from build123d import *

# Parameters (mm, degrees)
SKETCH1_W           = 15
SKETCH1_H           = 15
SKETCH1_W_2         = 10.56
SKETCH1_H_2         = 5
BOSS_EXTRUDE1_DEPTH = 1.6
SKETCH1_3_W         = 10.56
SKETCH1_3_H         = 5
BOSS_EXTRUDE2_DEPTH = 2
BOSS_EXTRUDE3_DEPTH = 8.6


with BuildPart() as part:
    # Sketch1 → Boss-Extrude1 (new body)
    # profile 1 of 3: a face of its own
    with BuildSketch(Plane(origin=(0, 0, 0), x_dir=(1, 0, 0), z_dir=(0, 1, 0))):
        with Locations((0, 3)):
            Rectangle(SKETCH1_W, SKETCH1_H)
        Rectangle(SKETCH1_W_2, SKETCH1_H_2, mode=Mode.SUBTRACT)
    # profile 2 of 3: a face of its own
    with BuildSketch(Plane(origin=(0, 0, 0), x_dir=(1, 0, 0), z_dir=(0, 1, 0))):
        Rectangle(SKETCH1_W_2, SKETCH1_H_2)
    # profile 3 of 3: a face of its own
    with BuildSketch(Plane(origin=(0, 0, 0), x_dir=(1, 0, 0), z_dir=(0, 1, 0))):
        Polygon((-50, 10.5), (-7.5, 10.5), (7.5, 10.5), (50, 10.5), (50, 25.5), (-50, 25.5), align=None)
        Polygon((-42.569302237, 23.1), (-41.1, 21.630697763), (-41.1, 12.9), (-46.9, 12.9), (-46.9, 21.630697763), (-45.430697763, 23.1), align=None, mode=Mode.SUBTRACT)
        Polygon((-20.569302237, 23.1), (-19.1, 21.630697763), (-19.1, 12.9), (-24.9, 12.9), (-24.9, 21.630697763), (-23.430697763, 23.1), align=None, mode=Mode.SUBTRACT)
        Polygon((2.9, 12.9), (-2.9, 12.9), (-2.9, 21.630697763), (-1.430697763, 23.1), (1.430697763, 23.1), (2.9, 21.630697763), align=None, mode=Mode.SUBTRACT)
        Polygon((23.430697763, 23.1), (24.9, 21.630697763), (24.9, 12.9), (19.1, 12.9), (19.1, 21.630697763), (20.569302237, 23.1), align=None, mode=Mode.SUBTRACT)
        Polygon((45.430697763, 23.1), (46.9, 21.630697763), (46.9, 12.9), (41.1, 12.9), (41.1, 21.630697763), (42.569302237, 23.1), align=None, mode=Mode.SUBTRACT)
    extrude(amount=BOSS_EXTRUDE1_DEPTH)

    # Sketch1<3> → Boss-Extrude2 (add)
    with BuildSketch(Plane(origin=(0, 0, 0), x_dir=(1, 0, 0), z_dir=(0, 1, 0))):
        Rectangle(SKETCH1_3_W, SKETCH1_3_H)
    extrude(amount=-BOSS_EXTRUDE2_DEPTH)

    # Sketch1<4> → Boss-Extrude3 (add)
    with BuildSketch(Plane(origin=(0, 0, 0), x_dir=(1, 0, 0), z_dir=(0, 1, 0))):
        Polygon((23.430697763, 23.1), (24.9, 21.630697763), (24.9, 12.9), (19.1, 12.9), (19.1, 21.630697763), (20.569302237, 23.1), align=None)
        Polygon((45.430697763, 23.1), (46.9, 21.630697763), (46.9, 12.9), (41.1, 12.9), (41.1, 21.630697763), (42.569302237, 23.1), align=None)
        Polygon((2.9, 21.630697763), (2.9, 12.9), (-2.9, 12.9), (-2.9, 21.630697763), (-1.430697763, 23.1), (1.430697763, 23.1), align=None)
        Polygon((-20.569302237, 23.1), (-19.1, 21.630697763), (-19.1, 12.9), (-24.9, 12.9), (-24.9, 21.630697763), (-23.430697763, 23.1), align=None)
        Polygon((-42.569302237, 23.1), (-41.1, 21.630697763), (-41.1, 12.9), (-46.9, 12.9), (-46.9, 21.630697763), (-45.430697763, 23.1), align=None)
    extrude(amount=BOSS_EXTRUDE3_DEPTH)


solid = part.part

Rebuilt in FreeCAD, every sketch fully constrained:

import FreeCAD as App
import Part
import Sketcher

V = App.Vector
Q = App.Units.Quantity

doc = App.newDocument("Part")
body = doc.addObject("PartDesign::Body", "Body")

sketch1 = body.newObject("Sketcher::SketchObject", "Sketch")
sketch1.AttachmentSupport = (doc.getObject("XZ_Plane"), [""])
sketch1.MapMode = "FlatFace"
sketch1.addGeometry(Part.LineSegment(V(-7.5, -10.5, 0), V(-7.5, 4.5, 0)), False)
sketch1.addGeometry(Part.LineSegment(V(-7.5, 4.5, 0), V(7.5, 4.5, 0)), False)
sketch1.addGeometry(Part.LineSegment(V(7.5, 4.5, 0), V(7.5, -10.5, 0)), False)
sketch1.addGeometry(Part.LineSegment(V(7.5, -10.5, 0), V(50, -10.5, 0)), False)
sketch1.addGeometry(Part.LineSegment(V(50, -10.5, 0), V(50, -25.5, 0)), False)
sketch1.addGeometry(Part.LineSegment(V(50, -25.5, 0), V(-50, -25.5, 0)), False)
sketch1.addGeometry(Part.LineSegment(V(-50, -25.5, 0), V(-50, -10.5, 0)), False)
sketch1.addGeometry(Part.LineSegment(V(-50, -10.5, 0), V(-7.5, -10.5, 0)), False)
sketch1.addGeometry(Part.LineSegment(V(45.4, -23.1, 0), V(46.9, -21.6, 0)), False)
sketch1.addGeometry(Part.LineSegment(V(46.9, -21.6, 0), V(46.9, -12.9, 0)), False)
sketch1.addGeometry(Part.LineSegment(V(46.9, -12.9, 0), V(41.1, -12.9, 0)), False)
sketch1.addGeometry(Part.LineSegment(V(41.1, -12.9, 0), V(41.1, -21.6, 0)), False)
sketch1.addGeometry(Part.LineSegment(V(41.1, -21.6, 0), V(42.6, -23.1, 0)), False)
sketch1.addGeometry(Part.LineSegment(V(42.6, -23.1, 0), V(45.4, -23.1, 0)), False)
sketch1.addGeometry(Part.LineSegment(V(-45.4, -23.1, 0), V(-42.6, -23.1, 0)), False)
sketch1.addGeometry(Part.LineSegment(V(-42.6, -23.1, 0), V(-41.1, -21.6, 0)), False)
sketch1.addGeometry(Part.LineSegment(V(-41.1, -21.6, 0), V(-41.1, -12.9, 0)), False)
sketch1.addGeometry(Part.LineSegment(V(-41.1, -12.9, 0), V(-46.9, -12.9, 0)), False)
sketch1.addGeometry(Part.LineSegment(V(-46.9, -12.9, 0), V(-46.9, -21.6, 0)), False)
sketch1.addGeometry(Part.LineSegment(V(-46.9, -21.6, 0), V(-45.4, -23.1, 0)), False)
sketch1.addGeometry(Part.LineSegment(V(-23.4, -23.1, 0), V(-20.6, -23.1, 0)), False)
sketch1.addGeometry(Part.LineSegment(V(-20.6, -23.1, 0), V(-19.1, -21.6, 0)), False)
sketch1.addGeometry(Part.LineSegment(V(-19.1, -21.6, 0), V(-19.1, -12.9, 0)), False)
sketch1.addGeometry(Part.LineSegment(V(-19.1, -12.9, 0), V(-24.9, -12.9, 0)), False)
sketch1.addGeometry(Part.LineSegment(V(-24.9, -12.9, 0), V(-24.9, -21.6, 0)), False)
sketch1.addGeometry(Part.LineSegment(V(-24.9, -21.6, 0), V(-23.4, -23.1, 0)), False)
sketch1.addGeometry(Part.LineSegment(V(2.9, -21.6, 0), V(2.9, -12.9, 0)), False)
sketch1.addGeometry(Part.LineSegment(V(2.9, -12.9, 0), V(-2.9, -12.9, 0)), False)
sketch1.addGeometry(Part.LineSegment(V(-2.9, -12.9, 0), V(-2.9, -21.6, 0)), False)
sketch1.addGeometry(Part.LineSegment(V(-2.9, -21.6, 0), V(-1.4, -23.1, 0)), False)
sketch1.addGeometry(Part.LineSegment(V(-1.4, -23.1, 0), V(1.4, -23.1, 0)), False)
sketch1.addGeometry(Part.LineSegment(V(1.4, -23.1, 0), V(2.9, -21.6, 0)), False)
sketch1.addGeometry(Part.LineSegment(V(20.6, -23.1, 0), V(23.4, -23.1, 0)), False)
sketch1.addGeometry(Part.LineSegment(V(23.4, -23.1, 0), V(24.9, -21.6, 0)), False)
sketch1.addGeometry(Part.LineSegment(V(24.9, -21.6, 0), V(24.9, -12.9, 0)), False)
sketch1.addGeometry(Part.LineSegment(V(24.9, -12.9, 0), V(19.1, -12.9, 0)), False)
sketch1.addGeometry(Part.LineSegment(V(19.1, -12.9, 0), V(19.1, -21.6, 0)), False)
sketch1.addGeometry(Part.LineSegment(V(19.1, -21.6, 0), V(20.6, -23.1, 0)), False)
sketch1.addConstraint(Sketcher.Constraint("Coincident", 0, 2, 1, 1))
sketch1.addConstraint(Sketcher.Constraint("Coincident", 1, 2, 2, 1))
sketch1.addConstraint(Sketcher.Constraint("Coincident", 2, 2, 3, 1))
sketch1.addConstraint(Sketcher.Constraint("Coincident", 3, 2, 4, 1))
sketch1.addConstraint(Sketcher.Constraint("Coincident", 4, 2, 5, 1))
sketch1.addConstraint(Sketcher.Constraint("Coincident", 5, 2, 6, 1))
sketch1.addConstraint(Sketcher.Constraint("Coincident", 6, 2, 7, 1))
sketch1.addConstraint(Sketcher.Constraint("Coincident", 7, 2, 0, 1))
sketch1.addConstraint(Sketcher.Constraint("Coincident", 8, 2, 9, 1))
sketch1.addConstraint(Sketcher.Constraint("Coincident", 9, 2, 10, 1))
sketch1.addConstraint(Sketcher.Constraint("Coincident", 10, 2, 11, 1))
sketch1.addConstraint(Sketcher.Constraint("Coincident", 11, 2, 12, 1))
sketch1.addConstraint(Sketcher.Constraint("Coincident", 12, 2, 13, 1))
sketch1.addConstraint(Sketcher.Constraint("Coincident", 13, 2, 8, 1))
sketch1.addConstraint(Sketcher.Constraint("Coincident", 14, 2, 15, 1))
sketch1.addConstraint(Sketcher.Constraint("Coincident", 15, 2, 16, 1))
sketch1.addConstraint(Sketcher.Constraint("Coincident", 16, 2, 17, 1))
sketch1.addConstraint(Sketcher.Constraint("Coincident", 17, 2, 18, 1))
sketch1.addConstraint(Sketcher.Constraint("Coincident", 18, 2, 19, 1))
sketch1.addConstraint(Sketcher.Constraint("Coincident", 19, 2, 14, 1))
sketch1.addConstraint(Sketcher.Constraint("Coincident", 20, 2, 21, 1))
sketch1.addConstraint(Sketcher.Constraint("Coincident", 21, 2, 22, 1))
sketch1.addConstraint(Sketcher.Constraint("Coincident", 22, 2, 23, 1))
sketch1.addConstraint(Sketcher.Constraint("Coincident", 23, 2, 24, 1))
sketch1.addConstraint(Sketcher.Constraint("Coincident", 24, 2, 25, 1))
sketch1.addConstraint(Sketcher.Constraint("Coincident", 25, 2, 20, 1))
sketch1.addConstraint(Sketcher.Constraint("Coincident", 26, 2, 27, 1))
sketch1.addConstraint(Sketcher.Constraint("Coincident", 27, 2, 28, 1))
sketch1.addConstraint(Sketcher.Constraint("Coincident", 28, 2, 29, 1))
sketch1.addConstraint(Sketcher.Constraint("Coincident", 29, 2, 30, 1))
sketch1.addConstraint(Sketcher.Constraint("Coincident", 30, 2, 31, 1))
sketch1.addConstraint(Sketcher.Constraint("Coincident", 31, 2, 26, 1))
sketch1.addConstraint(Sketcher.Constraint("Coincident", 32, 2, 33, 1))
sketch1.addConstraint(Sketcher.Constraint("Coincident", 33, 2, 34, 1))
sketch1.addConstraint(Sketcher.Constraint("Coincident", 34, 2, 35, 1))
sketch1.addConstraint(Sketcher.Constraint("Coincident", 35, 2, 36, 1))
sketch1.addConstraint(Sketcher.Constraint("Coincident", 36, 2, 37, 1))
sketch1.addConstraint(Sketcher.Constraint("Coincident", 37, 2, 32, 1))
sketch1.addConstraint(Sketcher.Constraint("Vertical", 0))
sketch1.addConstraint(Sketcher.Constraint("Horizontal", 1))
sketch1.addConstraint(Sketcher.Constraint("Vertical", 2))
sketch1.addConstraint(Sketcher.Constraint("Horizontal", 3))
sketch1.addConstraint(Sketcher.Constraint("Vertical", 4))
sketch1.addConstraint(Sketcher.Constraint("Horizontal", 5))
sketch1.addConstraint(Sketcher.Constraint("Vertical", 6))
sketch1.addConstraint(Sketcher.Constraint("Horizontal", 7))
sketch1.addConstraint(Sketcher.Constraint("Vertical", 9))
sketch1.addConstraint(Sketcher.Constraint("Horizontal", 10))
sketch1.addConstraint(Sketcher.Constraint("Vertical", 11))
sketch1.addConstraint(Sketcher.Constraint("Horizontal", 13))
sketch1.addConstraint(Sketcher.Constraint("Horizontal", 14))
sketch1.addConstraint(Sketcher.Constraint("Vertical", 16))
sketch1.addConstraint(Sketcher.Constraint("Horizontal", 17))
sketch1.addConstraint(Sketcher.Constraint("Vertical", 18))
sketch1.addConstraint(Sketcher.Constraint("Horizontal", 20))
sketch1.addConstraint(Sketcher.Constraint("Vertical", 22))
sketch1.addConstraint(Sketcher.Constraint("Horizontal", 23))
sketch1.addConstraint(Sketcher.Constraint("Vertical", 24))
sketch1.addConstraint(Sketcher.Constraint("Vertical", 26))
sketch1.addConstraint(Sketcher.Constraint("Horizontal", 27))
sketch1.addConstraint(Sketcher.Constraint("Vertical", 28))
sketch1.addConstraint(Sketcher.Constraint("Horizontal", 30))
sketch1.addConstraint(Sketcher.Constraint("Horizontal", 32))
sketch1.addConstraint(Sketcher.Constraint("Vertical", 34))
sketch1.addConstraint(Sketcher.Constraint("Horizontal", 35))
sketch1.addConstraint(Sketcher.Constraint("Vertical", 36))
sketch1.addConstraint(Sketcher.Constraint("Symmetric", 3, 2, 6, 2, -2))
sketch1.addConstraint(Sketcher.Constraint("Symmetric", 12, 2, 14, 2, -2))
sketch1.addConstraint(Sketcher.Constraint("Symmetric", 11, 2, 15, 2, -2))
sketch1.addConstraint(Sketcher.Constraint("Symmetric", 9, 2, 17, 2, -2))
sketch1.addConstraint(Sketcher.Constraint("Symmetric", 28, 2, 31, 2, -2))
sketch1.addConstraint(Sketcher.Constraint("Symmetric", 25, 2, 32, 2, -2))
sketch1.addConstraint(Sketcher.Constraint("Symmetric", 24, 2, 33, 2, -2))
sketch1.addConstraint(Sketcher.Constraint("Symmetric", 22, 2, 35, 2, -2))
sketch1.addConstraint(Sketcher.Constraint("Perpendicular", 8, 12))
sketch1.addConstraint(Sketcher.Constraint("Perpendicular", 12, 15))
sketch1.addConstraint(Sketcher.Constraint("Perpendicular", 15, 19))
sketch1.addConstraint(Sketcher.Constraint("Perpendicular", 19, 21))
sketch1.addConstraint(Sketcher.Constraint("Perpendicular", 21, 25))
sketch1.addConstraint(Sketcher.Constraint("Parallel", 25, 29))
sketch1.addConstraint(Sketcher.Constraint("Perpendicular", 29, 31))
sketch1.addConstraint(Sketcher.Constraint("Perpendicular", 33, 37))
sketch1.addConstraint(Sketcher.Constraint("Horizontal", 8, 2, 11, 2))
sketch1.addConstraint(Sketcher.Constraint("Horizontal", 15, 2, 18, 2))
sketch1.addConstraint(Sketcher.Constraint("Horizontal", 19, 2, 20, 2))
sketch1.addConstraint(Sketcher.Constraint("Horizontal", 18, 2, 21, 2))
sketch1.addConstraint(Sketcher.Constraint("Horizontal", 17, 2, 22, 2))
sketch1.addConstraint(Sketcher.Constraint("Horizontal", 21, 2, 24, 2))
sketch1.addConstraint(Sketcher.Constraint("Horizontal", 23, 2, 26, 2))
sketch1.addConstraint(Sketcher.Constraint("Horizontal", 24, 2, 28, 2))
sketch1.addConstraint(Sketcher.Constraint("Horizontal", 25, 2, 29, 2))
sketch1.addConstraint(Sketcher.Constraint("Horizontal", 33, 2, 36, 2))
sketch1.addConstraint(Sketcher.Constraint("Equal", 3, 7))
sketch1.addConstraint(Sketcher.Constraint("Equal", 14, 20))
sketch1.addConstraint(Sketcher.Constraint("Equal", 23, 27))
sketch1.addConstraint(Sketcher.Constraint("Equal", 1, 0))
sketch1.addConstraint(Sketcher.Constraint("Equal", 2, 4))
sketch1.addConstraint(Sketcher.Constraint("DistanceX", 1, 1, 1, 2, Q("15 mm")))
sketch1.addConstraint(Sketcher.Constraint("DistanceX", 5, 2, 5, 1, Q("100 mm")))
sketch1.addConstraint(Sketcher.Constraint("DistanceX", 10, 2, 10, 1, Q("5.8 mm")))
sketch1.addConstraint(Sketcher.Constraint("DistanceX", 14, 2, 20, 2, Q("22 mm")))
sketch1.addConstraint(Sketcher.Constraint("DistanceX", 22, 2, 26, 2, Q("22 mm")))
sketch1.addConstraint(Sketcher.Constraint("DistanceY", -1, 1, 0, 2, Q("4.5 mm")))
sketch1.addConstraint(Sketcher.Constraint("DistanceY", 9, 2, -1, 1, Q("12.9 mm")))
sketch1.addConstraint(Sketcher.Constraint("DistanceY", 12, 2, -1, 1, Q("23.1 mm")))
sketch1.addConstraint(Sketcher.Constraint("DistanceX", 13, 1, 13, 2, Q("2.861396 mm")))
pad1 = body.newObject("PartDesign::Pad", "Pad")
pad1.Profile = sketch1
pad1.Length = 1.6
pad1.Reversed = True

sketch2 = body.newObject("Sketcher::SketchObject", "Sketch001")
sketch2.AttachmentSupport = (doc.getObject("XZ_Plane"), [""])
sketch2.MapMode = "FlatFace"
sketch2.addGeometry(Part.LineSegment(V(-5, -2, 0), V(-5, 2, 0)), False)
sketch2.addGeometry(Part.LineSegment(V(-5, 2, 0), V(5, 2, 0)), False)
sketch2.addGeometry(Part.LineSegment(V(5, 2, 0), V(5, -2, 0)), False)
sketch2.addGeometry(Part.LineSegment(V(5, -2, 0), V(-5, -2, 0)), False)
sketch2.addConstraint(Sketcher.Constraint("Coincident", 0, 2, 1, 1))
sketch2.addConstraint(Sketcher.Constraint("Coincident", 1, 2, 2, 1))
sketch2.addConstraint(Sketcher.Constraint("Coincident", 2, 2, 3, 1))
sketch2.addConstraint(Sketcher.Constraint("Coincident", 3, 2, 0, 1))
sketch2.addConstraint(Sketcher.Constraint("Vertical", 0))
sketch2.addConstraint(Sketcher.Constraint("Horizontal", 1))
sketch2.addConstraint(Sketcher.Constraint("Vertical", 2))
sketch2.addConstraint(Sketcher.Constraint("Horizontal", 3))
sketch2.addConstraint(Sketcher.Constraint("Symmetric", 0, 2, 2, 2, -1, 1))
sketch2.addConstraint(Sketcher.Constraint("DistanceY", 0, 1, 0, 2, Q("5 mm")))
sketch2.addConstraint(Sketcher.Constraint("DistanceX", 1, 1, 1, 2, Q("10.56 mm")))
pad2 = body.newObject("PartDesign::Pad", "Pad001")
pad2.Profile = sketch2
pad2.Length = 2

sketch3 = body.newObject("Sketcher::SketchObject", "Sketch002")
sketch3.AttachmentSupport = (doc.getObject("XZ_Plane"), [""])
sketch3.MapMode = "FlatFace"
sketch3.addGeometry(Part.LineSegment(V(24.9, -21.6, 0), V(23.4, -23.1, 0)), False)
sketch3.addGeometry(Part.LineSegment(V(23.4, -23.1, 0), V(20.6, -23.1, 0)), False)
sketch3.addGeometry(Part.LineSegment(V(20.6, -23.1, 0), V(19.1, -21.6, 0)), False)
sketch3.addGeometry(Part.LineSegment(V(19.1, -21.6, 0), V(19.1, -12.9, 0)), False)
sketch3.addGeometry(Part.LineSegment(V(19.1, -12.9, 0), V(24.9, -12.9, 0)), False)
sketch3.addGeometry(Part.LineSegment(V(24.9, -12.9, 0), V(24.9, -21.6, 0)), False)
sketch3.addGeometry(Part.LineSegment(V(46.9, -21.6, 0), V(45.4, -23.1, 0)), False)
sketch3.addGeometry(Part.LineSegment(V(45.4, -23.1, 0), V(42.6, -23.1, 0)), False)
sketch3.addGeometry(Part.LineSegment(V(42.6, -23.1, 0), V(41.1, -21.6, 0)), False)
sketch3.addGeometry(Part.LineSegment(V(41.1, -21.6, 0), V(41.1, -12.9, 0)), False)
sketch3.addGeometry(Part.LineSegment(V(41.1, -12.9, 0), V(46.9, -12.9, 0)), False)
sketch3.addGeometry(Part.LineSegment(V(46.9, -12.9, 0), V(46.9, -21.6, 0)), False)
sketch3.addGeometry(Part.LineSegment(V(2.9, -12.9, 0), V(2.9, -21.6, 0)), False)
sketch3.addGeometry(Part.LineSegment(V(2.9, -21.6, 0), V(1.4, -23.1, 0)), False)
sketch3.addGeometry(Part.LineSegment(V(1.4, -23.1, 0), V(-1.4, -23.1, 0)), False)
sketch3.addGeometry(Part.LineSegment(V(-1.4, -23.1, 0), V(-2.9, -21.6, 0)), False)
sketch3.addGeometry(Part.LineSegment(V(-2.9, -21.6, 0), V(-2.9, -12.9, 0)), False)
sketch3.addGeometry(Part.LineSegment(V(-2.9, -12.9, 0), V(2.9, -12.9, 0)), False)
sketch3.addGeometry(Part.LineSegment(V(-19.1, -21.6, 0), V(-20.6, -23.1, 0)), False)
sketch3.addGeometry(Part.LineSegment(V(-20.6, -23.1, 0), V(-23.4, -23.1, 0)), False)
sketch3.addGeometry(Part.LineSegment(V(-23.4, -23.1, 0), V(-24.9, -21.6, 0)), False)
sketch3.addGeometry(Part.LineSegment(V(-24.9, -21.6, 0), V(-24.9, -12.9, 0)), False)
sketch3.addGeometry(Part.LineSegment(V(-24.9, -12.9, 0), V(-19.1, -12.9, 0)), False)
sketch3.addGeometry(Part.LineSegment(V(-19.1, -12.9, 0), V(-19.1, -21.6, 0)), False)
sketch3.addGeometry(Part.LineSegment(V(-41.1, -21.6, 0), V(-42.6, -23.1, 0)), False)
sketch3.addGeometry(Part.LineSegment(V(-42.6, -23.1, 0), V(-45.4, -23.1, 0)), False)
sketch3.addGeometry(Part.LineSegment(V(-45.4, -23.1, 0), V(-46.9, -21.6, 0)), False)
sketch3.addGeometry(Part.LineSegment(V(-46.9, -21.6, 0), V(-46.9, -12.9, 0)), False)
sketch3.addGeometry(Part.LineSegment(V(-46.9, -12.9, 0), V(-41.1, -12.9, 0)), False)
sketch3.addGeometry(Part.LineSegment(V(-41.1, -12.9, 0), V(-41.1, -21.6, 0)), False)
sketch3.addConstraint(Sketcher.Constraint("Coincident", 0, 2, 1, 1))
sketch3.addConstraint(Sketcher.Constraint("Coincident", 1, 2, 2, 1))
sketch3.addConstraint(Sketcher.Constraint("Coincident", 2, 2, 3, 1))
sketch3.addConstraint(Sketcher.Constraint("Coincident", 3, 2, 4, 1))
sketch3.addConstraint(Sketcher.Constraint("Coincident", 4, 2, 5, 1))
sketch3.addConstraint(Sketcher.Constraint("Coincident", 5, 2, 0, 1))
sketch3.addConstraint(Sketcher.Constraint("Coincident", 6, 2, 7, 1))
sketch3.addConstraint(Sketcher.Constraint("Coincident", 7, 2, 8, 1))
sketch3.addConstraint(Sketcher.Constraint("Coincident", 8, 2, 9, 1))
sketch3.addConstraint(Sketcher.Constraint("Coincident", 9, 2, 10, 1))
sketch3.addConstraint(Sketcher.Constraint("Coincident", 10, 2, 11, 1))
sketch3.addConstraint(Sketcher.Constraint("Coincident", 11, 2, 6, 1))
sketch3.addConstraint(Sketcher.Constraint("Coincident", 12, 2, 13, 1))
sketch3.addConstraint(Sketcher.Constraint("Coincident", 13, 2, 14, 1))
sketch3.addConstraint(Sketcher.Constraint("Coincident", 14, 2, 15, 1))
sketch3.addConstraint(Sketcher.Constraint("Coincident", 15, 2, 16, 1))
sketch3.addConstraint(Sketcher.Constraint("Coincident", 16, 2, 17, 1))
sketch3.addConstraint(Sketcher.Constraint("Coincident", 17, 2, 12, 1))
sketch3.addConstraint(Sketcher.Constraint("Coincident", 18, 2, 19, 1))
sketch3.addConstraint(Sketcher.Constraint("Coincident", 19, 2, 20, 1))
sketch3.addConstraint(Sketcher.Constraint("Coincident", 20, 2, 21, 1))
sketch3.addConstraint(Sketcher.Constraint("Coincident", 21, 2, 22, 1))
sketch3.addConstraint(Sketcher.Constraint("Coincident", 22, 2, 23, 1))
sketch3.addConstraint(Sketcher.Constraint("Coincident", 23, 2, 18, 1))
sketch3.addConstraint(Sketcher.Constraint("Coincident", 24, 2, 25, 1))
sketch3.addConstraint(Sketcher.Constraint("Coincident", 25, 2, 26, 1))
sketch3.addConstraint(Sketcher.Constraint("Coincident", 26, 2, 27, 1))
sketch3.addConstraint(Sketcher.Constraint("Coincident", 27, 2, 28, 1))
sketch3.addConstraint(Sketcher.Constraint("Coincident", 28, 2, 29, 1))
sketch3.addConstraint(Sketcher.Constraint("Coincident", 29, 2, 24, 1))
sketch3.addConstraint(Sketcher.Constraint("Horizontal", 1))
sketch3.addConstraint(Sketcher.Constraint("Vertical", 3))
sketch3.addConstraint(Sketcher.Constraint("Horizontal", 4))
sketch3.addConstraint(Sketcher.Constraint("Vertical", 5))
sketch3.addConstraint(Sketcher.Constraint("Horizontal", 7))
sketch3.addConstraint(Sketcher.Constraint("Vertical", 9))
sketch3.addConstraint(Sketcher.Constraint("Horizontal", 10))
sketch3.addConstraint(Sketcher.Constraint("Vertical", 11))
sketch3.addConstraint(Sketcher.Constraint("Vertical", 12))
sketch3.addConstraint(Sketcher.Constraint("Horizontal", 14))
sketch3.addConstraint(Sketcher.Constraint("Vertical", 16))
sketch3.addConstraint(Sketcher.Constraint("Horizontal", 17))
sketch3.addConstraint(Sketcher.Constraint("Horizontal", 19))
sketch3.addConstraint(Sketcher.Constraint("Vertical", 21))
sketch3.addConstraint(Sketcher.Constraint("Horizontal", 22))
sketch3.addConstraint(Sketcher.Constraint("Vertical", 23))
sketch3.addConstraint(Sketcher.Constraint("Horizontal", 25))
sketch3.addConstraint(Sketcher.Constraint("Vertical", 27))
sketch3.addConstraint(Sketcher.Constraint("Horizontal", 28))
sketch3.addConstraint(Sketcher.Constraint("Vertical", 29))
sketch3.addConstraint(Sketcher.Constraint("Symmetric", 12, 2, 15, 2, -2))
sketch3.addConstraint(Sketcher.Constraint("Symmetric", 1, 2, 18, 2, -2))
sketch3.addConstraint(Sketcher.Constraint("Symmetric", 5, 2, 20, 2, -2))
sketch3.addConstraint(Sketcher.Constraint("Symmetric", 3, 2, 22, 2, -2))
sketch3.addConstraint(Sketcher.Constraint("Symmetric", 7, 2, 24, 2, -2))
sketch3.addConstraint(Sketcher.Constraint("Symmetric", 11, 2, 26, 2, -2))
sketch3.addConstraint(Sketcher.Constraint("Symmetric", 9, 2, 28, 2, -2))
sketch3.addConstraint(Sketcher.Constraint("Perpendicular", 0, 2))
sketch3.addConstraint(Sketcher.Constraint("Perpendicular", 2, 6))
sketch3.addConstraint(Sketcher.Constraint("Perpendicular", 6, 8))
sketch3.addConstraint(Sketcher.Constraint("Perpendicular", 8, 13))
sketch3.addConstraint(Sketcher.Constraint("Perpendicular", 13, 15))
sketch3.addConstraint(Sketcher.Constraint("Perpendicular", 15, 18))
sketch3.addConstraint(Sketcher.Constraint("Perpendicular", 18, 20))
sketch3.addConstraint(Sketcher.Constraint("Perpendicular", 20, 24))
sketch3.addConstraint(Sketcher.Constraint("Perpendicular", 24, 26))
sketch3.addConstraint(Sketcher.Constraint("Horizontal", 2, 2, 5, 2))
sketch3.addConstraint(Sketcher.Constraint("Horizontal", 1, 2, 6, 2))
sketch3.addConstraint(Sketcher.Constraint("Horizontal", 5, 2, 8, 2))
sketch3.addConstraint(Sketcher.Constraint("Horizontal", 4, 2, 9, 2))
sketch3.addConstraint(Sketcher.Constraint("Horizontal", 8, 2, 11, 2))
sketch3.addConstraint(Sketcher.Constraint("Horizontal", 11, 2, 12, 2))
sketch3.addConstraint(Sketcher.Constraint("Horizontal", 7, 2, 13, 2))
sketch3.addConstraint(Sketcher.Constraint("Horizontal", 10, 2, 16, 2))
sketch3.addConstraint(Sketcher.Constraint("Horizontal", 20, 2, 23, 2))
sketch3.addConstraint(Sketcher.Constraint("Equal", 1, 7))
sketch3.addConstraint(Sketcher.Constraint("Equal", 7, 14))
sketch3.addConstraint(Sketcher.Constraint("DistanceX", 4, 1, 4, 2, Q("5.8 mm")))
sketch3.addConstraint(Sketcher.Constraint("DistanceX", 0, 2, 6, 2, Q("22 mm")))
sketch3.addConstraint(Sketcher.Constraint("DistanceX", 12, 2, 5, 2, Q("22 mm")))
sketch3.addConstraint(Sketcher.Constraint("DistanceY", 0, 2, -1, 1, Q("23.1 mm")))
sketch3.addConstraint(Sketcher.Constraint("DistanceY", 3, 2, -1, 1, Q("12.9 mm")))
sketch3.addConstraint(Sketcher.Constraint("DistanceX", 1, 2, 1, 1, Q("2.861396 mm")))
pad3 = body.newObject("PartDesign::Pad", "Pad002")
pad3.Profile = sketch3
pad3.Length = 8.6
pad3.Reversed = True

doc.recompute()
